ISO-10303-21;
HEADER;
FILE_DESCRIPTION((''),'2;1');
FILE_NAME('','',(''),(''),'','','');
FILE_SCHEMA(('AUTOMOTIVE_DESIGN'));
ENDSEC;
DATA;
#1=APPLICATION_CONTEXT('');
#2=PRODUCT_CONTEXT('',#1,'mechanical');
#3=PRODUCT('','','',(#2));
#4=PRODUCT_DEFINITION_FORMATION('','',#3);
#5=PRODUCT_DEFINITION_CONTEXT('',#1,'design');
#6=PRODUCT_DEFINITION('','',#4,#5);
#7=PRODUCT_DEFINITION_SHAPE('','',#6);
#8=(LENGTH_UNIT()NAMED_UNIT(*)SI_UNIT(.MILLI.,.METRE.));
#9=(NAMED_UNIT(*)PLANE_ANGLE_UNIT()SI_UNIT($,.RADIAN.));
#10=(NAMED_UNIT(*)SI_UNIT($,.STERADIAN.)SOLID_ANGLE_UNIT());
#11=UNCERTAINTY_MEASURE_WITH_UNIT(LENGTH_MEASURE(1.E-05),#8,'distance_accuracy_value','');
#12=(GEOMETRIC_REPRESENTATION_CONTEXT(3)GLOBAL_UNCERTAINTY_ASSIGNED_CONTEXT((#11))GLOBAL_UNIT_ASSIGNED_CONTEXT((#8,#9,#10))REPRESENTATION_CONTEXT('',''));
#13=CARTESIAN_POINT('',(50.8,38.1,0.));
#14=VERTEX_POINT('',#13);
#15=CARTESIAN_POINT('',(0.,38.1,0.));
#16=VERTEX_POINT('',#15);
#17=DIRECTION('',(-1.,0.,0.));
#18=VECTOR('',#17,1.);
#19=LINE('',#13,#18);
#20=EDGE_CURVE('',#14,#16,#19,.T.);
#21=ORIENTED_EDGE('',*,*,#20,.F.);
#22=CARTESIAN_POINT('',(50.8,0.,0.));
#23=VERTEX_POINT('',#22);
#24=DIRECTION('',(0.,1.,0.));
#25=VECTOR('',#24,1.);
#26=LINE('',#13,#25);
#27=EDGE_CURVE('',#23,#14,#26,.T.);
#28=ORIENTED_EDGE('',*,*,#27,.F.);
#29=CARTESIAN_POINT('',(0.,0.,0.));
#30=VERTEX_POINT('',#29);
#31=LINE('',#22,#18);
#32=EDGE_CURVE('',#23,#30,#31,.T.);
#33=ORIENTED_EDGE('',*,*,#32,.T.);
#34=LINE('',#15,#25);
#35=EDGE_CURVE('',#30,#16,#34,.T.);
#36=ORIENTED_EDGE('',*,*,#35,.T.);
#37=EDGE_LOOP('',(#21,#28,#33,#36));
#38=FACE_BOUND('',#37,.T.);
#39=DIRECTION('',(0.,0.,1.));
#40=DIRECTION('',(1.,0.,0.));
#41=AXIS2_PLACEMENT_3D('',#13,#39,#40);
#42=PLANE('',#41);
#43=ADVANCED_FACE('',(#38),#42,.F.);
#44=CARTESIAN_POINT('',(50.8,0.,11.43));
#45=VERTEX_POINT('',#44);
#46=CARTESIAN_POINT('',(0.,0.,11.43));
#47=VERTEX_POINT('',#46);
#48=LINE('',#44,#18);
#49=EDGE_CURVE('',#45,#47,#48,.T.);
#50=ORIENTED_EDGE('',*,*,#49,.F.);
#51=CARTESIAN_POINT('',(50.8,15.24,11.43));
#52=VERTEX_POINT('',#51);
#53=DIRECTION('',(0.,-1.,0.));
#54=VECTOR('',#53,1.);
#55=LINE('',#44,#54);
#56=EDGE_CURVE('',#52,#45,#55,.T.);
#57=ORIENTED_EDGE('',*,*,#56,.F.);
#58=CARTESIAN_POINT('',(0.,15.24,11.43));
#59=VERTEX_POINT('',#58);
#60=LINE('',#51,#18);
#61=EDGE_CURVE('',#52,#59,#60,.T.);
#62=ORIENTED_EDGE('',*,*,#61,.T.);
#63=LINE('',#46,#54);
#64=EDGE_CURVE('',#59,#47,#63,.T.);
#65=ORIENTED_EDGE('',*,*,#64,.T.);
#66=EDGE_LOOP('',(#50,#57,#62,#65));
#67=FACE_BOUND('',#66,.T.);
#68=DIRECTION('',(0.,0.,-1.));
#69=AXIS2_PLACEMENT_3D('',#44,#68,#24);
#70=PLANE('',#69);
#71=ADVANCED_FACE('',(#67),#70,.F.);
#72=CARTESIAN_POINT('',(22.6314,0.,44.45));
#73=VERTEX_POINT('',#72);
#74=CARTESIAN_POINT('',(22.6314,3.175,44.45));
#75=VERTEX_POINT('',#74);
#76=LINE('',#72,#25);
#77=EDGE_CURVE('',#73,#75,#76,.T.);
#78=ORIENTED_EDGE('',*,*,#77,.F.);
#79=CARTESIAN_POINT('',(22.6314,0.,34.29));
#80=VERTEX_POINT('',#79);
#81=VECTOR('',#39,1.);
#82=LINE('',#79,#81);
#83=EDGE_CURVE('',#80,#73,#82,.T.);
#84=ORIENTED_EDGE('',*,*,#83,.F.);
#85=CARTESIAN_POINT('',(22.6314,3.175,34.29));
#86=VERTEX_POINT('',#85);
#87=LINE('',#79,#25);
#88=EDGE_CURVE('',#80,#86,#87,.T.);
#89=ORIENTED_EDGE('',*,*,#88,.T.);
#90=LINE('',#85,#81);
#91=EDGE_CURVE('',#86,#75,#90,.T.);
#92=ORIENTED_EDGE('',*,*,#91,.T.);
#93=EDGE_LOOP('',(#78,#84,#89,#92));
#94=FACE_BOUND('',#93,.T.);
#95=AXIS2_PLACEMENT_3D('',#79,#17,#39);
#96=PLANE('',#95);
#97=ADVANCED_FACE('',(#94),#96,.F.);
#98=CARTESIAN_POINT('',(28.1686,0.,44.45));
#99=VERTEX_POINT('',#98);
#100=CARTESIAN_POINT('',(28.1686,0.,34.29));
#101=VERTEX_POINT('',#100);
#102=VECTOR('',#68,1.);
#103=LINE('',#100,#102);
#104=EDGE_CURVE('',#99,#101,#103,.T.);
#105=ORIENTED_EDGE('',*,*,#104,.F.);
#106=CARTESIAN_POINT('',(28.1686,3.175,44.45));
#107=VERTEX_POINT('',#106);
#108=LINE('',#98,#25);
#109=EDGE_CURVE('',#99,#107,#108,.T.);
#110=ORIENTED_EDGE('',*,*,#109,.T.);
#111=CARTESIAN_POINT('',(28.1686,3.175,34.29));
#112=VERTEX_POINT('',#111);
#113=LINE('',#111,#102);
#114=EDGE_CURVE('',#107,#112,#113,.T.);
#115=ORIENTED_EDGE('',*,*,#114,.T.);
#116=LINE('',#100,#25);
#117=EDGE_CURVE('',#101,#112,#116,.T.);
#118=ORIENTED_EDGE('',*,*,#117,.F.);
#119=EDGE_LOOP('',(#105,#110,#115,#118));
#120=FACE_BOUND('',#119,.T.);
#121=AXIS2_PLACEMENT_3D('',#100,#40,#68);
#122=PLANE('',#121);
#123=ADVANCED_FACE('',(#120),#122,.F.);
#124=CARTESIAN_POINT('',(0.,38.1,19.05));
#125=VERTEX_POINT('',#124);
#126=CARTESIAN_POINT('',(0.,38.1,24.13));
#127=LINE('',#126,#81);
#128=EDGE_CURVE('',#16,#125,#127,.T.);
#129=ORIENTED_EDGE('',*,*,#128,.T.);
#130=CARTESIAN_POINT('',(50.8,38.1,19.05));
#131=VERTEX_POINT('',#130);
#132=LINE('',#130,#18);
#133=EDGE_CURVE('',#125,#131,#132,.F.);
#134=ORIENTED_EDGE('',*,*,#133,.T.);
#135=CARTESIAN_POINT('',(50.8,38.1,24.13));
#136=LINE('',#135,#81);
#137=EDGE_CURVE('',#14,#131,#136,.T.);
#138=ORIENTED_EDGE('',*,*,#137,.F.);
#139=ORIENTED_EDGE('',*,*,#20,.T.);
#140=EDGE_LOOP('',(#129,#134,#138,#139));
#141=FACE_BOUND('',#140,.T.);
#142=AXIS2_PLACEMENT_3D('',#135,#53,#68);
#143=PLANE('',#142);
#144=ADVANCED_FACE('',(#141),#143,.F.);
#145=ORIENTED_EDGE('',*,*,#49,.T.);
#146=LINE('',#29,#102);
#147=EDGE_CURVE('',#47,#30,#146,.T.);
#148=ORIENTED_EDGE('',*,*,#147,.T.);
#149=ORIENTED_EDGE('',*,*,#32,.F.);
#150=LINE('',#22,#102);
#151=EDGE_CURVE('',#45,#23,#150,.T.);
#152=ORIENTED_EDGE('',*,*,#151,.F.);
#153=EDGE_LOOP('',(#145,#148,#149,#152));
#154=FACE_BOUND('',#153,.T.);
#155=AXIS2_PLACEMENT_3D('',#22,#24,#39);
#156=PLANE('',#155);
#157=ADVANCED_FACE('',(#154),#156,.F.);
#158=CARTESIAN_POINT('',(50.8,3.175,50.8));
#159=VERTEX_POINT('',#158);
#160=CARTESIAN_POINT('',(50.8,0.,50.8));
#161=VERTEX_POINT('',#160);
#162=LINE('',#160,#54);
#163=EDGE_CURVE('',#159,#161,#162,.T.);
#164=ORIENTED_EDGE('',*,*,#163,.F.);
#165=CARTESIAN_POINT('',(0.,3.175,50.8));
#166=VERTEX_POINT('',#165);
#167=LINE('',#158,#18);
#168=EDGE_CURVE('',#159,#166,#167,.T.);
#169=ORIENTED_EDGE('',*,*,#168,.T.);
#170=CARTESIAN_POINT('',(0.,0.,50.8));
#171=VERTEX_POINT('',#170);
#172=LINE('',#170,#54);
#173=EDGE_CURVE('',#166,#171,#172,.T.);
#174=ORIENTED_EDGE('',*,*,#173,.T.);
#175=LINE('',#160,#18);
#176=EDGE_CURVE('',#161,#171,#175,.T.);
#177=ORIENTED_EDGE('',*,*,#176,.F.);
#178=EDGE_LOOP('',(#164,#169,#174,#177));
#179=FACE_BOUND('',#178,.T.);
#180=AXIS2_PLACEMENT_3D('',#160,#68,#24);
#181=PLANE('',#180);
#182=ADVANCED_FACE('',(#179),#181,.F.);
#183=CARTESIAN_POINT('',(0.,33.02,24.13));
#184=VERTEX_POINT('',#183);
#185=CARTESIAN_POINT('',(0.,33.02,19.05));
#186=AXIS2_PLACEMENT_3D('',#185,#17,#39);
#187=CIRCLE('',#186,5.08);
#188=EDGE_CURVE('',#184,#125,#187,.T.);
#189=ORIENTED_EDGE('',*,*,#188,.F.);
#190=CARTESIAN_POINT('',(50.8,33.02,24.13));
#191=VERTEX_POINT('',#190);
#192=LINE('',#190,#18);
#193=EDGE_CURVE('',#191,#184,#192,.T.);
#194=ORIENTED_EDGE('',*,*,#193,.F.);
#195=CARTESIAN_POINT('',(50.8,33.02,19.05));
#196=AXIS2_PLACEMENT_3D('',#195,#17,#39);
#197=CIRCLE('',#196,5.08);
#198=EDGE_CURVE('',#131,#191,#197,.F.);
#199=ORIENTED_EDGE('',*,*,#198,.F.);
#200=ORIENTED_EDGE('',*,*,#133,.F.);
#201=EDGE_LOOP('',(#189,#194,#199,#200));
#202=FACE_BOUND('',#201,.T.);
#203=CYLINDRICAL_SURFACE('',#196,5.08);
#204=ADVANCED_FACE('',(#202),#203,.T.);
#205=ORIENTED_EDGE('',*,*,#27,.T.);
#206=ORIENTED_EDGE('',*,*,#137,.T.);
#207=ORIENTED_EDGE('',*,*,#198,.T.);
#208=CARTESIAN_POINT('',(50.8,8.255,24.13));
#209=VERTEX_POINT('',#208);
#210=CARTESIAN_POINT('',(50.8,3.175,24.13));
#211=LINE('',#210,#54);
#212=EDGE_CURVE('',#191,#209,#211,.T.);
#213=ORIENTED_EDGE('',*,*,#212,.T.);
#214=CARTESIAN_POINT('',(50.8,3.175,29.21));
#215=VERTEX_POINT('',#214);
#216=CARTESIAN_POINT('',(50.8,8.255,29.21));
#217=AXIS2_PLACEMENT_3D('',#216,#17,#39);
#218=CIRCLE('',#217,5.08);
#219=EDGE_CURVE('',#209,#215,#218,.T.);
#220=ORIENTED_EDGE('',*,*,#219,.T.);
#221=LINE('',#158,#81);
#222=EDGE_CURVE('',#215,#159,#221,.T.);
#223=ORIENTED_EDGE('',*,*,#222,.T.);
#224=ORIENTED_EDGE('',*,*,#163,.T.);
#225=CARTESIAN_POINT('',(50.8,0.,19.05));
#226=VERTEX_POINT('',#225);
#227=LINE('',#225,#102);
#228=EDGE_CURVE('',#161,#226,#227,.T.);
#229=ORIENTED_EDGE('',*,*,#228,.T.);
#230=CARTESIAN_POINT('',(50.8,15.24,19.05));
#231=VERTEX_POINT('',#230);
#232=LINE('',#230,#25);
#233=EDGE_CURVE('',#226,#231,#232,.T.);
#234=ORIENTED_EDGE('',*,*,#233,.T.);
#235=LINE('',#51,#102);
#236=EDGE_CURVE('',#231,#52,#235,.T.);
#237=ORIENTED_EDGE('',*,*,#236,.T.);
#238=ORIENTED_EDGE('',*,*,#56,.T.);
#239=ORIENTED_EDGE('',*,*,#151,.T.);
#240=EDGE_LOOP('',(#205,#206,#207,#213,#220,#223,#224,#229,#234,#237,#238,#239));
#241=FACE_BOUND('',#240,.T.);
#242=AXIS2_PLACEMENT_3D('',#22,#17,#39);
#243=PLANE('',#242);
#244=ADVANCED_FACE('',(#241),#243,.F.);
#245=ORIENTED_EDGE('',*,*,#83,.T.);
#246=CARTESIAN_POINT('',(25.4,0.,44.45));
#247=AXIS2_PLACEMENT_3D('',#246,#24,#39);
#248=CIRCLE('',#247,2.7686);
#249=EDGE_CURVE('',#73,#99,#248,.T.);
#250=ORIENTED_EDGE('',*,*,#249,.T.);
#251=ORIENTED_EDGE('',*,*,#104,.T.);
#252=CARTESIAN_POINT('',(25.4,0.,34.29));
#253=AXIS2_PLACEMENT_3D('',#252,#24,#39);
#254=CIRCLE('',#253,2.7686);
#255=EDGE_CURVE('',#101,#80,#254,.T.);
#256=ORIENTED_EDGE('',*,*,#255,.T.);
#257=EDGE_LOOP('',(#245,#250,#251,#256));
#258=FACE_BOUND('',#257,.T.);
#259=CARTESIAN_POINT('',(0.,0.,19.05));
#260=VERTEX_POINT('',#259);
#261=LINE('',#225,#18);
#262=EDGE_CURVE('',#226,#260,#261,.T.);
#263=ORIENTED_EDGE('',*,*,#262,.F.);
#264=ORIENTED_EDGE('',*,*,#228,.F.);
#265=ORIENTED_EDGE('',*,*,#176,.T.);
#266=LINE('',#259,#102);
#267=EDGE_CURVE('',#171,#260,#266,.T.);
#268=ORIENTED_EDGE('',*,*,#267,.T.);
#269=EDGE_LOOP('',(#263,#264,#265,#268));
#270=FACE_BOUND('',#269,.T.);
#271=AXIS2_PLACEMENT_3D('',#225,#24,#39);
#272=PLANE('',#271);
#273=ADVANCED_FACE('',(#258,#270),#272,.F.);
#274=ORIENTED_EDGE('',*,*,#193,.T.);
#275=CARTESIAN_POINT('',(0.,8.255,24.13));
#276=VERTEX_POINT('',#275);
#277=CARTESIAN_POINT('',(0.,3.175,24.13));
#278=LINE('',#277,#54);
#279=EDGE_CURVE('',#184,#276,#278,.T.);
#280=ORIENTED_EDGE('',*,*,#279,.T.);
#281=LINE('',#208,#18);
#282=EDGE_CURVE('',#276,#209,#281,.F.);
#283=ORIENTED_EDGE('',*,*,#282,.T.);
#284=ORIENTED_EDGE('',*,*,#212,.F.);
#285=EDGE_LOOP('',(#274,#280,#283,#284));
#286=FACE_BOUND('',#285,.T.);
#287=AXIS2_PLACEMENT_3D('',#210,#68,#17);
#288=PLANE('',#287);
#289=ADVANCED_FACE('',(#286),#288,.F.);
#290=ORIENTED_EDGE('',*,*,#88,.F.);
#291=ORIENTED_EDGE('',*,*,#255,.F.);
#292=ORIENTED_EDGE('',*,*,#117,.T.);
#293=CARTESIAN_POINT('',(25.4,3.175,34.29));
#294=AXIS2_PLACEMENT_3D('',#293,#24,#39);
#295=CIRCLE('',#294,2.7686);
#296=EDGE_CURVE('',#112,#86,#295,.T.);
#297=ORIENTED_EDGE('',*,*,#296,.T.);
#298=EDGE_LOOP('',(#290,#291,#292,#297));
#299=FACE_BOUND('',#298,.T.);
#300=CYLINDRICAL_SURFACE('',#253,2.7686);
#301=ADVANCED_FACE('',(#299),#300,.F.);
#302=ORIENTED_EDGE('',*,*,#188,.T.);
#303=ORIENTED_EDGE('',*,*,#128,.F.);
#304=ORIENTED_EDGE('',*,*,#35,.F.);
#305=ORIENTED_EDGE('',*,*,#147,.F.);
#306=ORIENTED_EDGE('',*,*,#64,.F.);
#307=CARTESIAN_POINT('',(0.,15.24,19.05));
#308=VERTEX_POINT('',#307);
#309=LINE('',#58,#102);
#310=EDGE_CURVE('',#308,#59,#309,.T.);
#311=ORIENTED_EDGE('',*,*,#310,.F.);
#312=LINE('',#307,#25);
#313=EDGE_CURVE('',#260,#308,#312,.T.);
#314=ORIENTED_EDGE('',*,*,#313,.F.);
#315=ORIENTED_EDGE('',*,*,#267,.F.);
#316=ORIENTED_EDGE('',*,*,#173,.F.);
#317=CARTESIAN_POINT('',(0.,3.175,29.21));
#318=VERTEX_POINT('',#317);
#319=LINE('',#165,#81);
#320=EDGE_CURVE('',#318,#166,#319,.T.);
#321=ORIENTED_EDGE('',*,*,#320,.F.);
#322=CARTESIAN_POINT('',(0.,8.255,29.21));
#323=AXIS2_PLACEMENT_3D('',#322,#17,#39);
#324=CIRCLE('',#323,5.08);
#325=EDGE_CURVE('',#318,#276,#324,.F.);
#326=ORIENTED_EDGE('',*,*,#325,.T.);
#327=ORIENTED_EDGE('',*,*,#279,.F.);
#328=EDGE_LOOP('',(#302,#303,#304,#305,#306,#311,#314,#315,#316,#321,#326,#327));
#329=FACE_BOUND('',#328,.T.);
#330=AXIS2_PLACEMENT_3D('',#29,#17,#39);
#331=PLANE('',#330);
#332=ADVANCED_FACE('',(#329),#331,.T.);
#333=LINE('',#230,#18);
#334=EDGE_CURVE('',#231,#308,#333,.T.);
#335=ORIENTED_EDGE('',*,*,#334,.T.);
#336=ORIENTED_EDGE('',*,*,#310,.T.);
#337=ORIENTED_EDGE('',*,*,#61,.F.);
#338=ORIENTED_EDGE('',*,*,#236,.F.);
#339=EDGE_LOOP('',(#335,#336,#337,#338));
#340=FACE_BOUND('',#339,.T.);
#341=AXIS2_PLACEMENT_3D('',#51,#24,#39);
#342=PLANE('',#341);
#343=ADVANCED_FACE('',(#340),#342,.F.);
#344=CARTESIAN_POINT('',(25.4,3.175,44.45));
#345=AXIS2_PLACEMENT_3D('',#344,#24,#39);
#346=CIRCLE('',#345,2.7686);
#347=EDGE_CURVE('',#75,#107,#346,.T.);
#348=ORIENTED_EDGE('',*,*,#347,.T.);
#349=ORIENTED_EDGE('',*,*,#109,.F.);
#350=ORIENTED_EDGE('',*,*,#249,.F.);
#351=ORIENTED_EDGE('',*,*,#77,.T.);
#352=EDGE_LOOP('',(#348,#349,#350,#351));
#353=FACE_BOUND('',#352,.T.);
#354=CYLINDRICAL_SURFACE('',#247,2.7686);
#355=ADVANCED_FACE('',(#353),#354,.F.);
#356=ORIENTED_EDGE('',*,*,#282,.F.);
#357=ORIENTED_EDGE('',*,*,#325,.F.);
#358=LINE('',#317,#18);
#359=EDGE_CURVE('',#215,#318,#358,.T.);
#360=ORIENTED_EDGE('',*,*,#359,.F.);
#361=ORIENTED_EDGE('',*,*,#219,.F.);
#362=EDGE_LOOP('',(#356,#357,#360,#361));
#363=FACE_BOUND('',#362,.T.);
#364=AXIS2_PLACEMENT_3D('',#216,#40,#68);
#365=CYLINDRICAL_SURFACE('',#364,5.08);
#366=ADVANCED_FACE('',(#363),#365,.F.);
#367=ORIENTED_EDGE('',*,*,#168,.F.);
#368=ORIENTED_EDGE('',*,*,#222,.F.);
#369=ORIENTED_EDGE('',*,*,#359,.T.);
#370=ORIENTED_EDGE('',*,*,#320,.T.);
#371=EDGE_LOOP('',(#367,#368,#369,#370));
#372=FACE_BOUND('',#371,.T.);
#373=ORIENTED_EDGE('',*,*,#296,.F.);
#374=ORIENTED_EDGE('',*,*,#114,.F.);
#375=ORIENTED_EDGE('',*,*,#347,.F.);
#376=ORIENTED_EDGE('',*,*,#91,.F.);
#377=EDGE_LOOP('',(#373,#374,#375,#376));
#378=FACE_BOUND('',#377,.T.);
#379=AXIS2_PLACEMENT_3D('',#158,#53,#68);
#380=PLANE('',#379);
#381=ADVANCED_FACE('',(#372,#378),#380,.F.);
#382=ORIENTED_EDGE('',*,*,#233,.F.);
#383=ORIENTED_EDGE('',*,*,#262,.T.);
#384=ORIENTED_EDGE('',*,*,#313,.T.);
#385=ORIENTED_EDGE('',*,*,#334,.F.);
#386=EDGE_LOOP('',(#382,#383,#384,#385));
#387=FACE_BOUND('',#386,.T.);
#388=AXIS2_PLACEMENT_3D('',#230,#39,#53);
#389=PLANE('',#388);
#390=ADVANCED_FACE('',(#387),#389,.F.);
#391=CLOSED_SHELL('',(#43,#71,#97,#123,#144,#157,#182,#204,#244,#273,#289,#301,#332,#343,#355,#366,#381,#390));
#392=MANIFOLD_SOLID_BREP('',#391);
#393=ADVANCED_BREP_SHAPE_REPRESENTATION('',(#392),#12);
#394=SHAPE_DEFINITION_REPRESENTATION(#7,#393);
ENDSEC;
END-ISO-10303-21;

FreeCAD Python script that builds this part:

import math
import FreeCAD as App
import Part
import Sketcher
Q = App.Units.Quantity


def edges_at(feature, points):
    """Names of the edges that pass closest to the given points."""
    edges = feature.Shape.Edges
    near = lambda p: min(range(len(edges)), key=lambda i: edges[i].distToShape(Part.Vertex(*p))[0])
    return sorted({f"Edge{near(p) + 1}" for p in points})


def add_polygon(sketch, points):
    """Adds a closed chain of lines whose ends are joined by coincident constraints."""
    first, n = sketch.GeometryCount, len(points)
    for a, b in zip(points, points[1:] + points[:1]):
        sketch.addGeometry(Part.LineSegment(App.Vector(*a, 0), App.Vector(*b, 0)), False)
    for i in range(n):
        sketch.addConstraint(Sketcher.Constraint("Coincident", first + i, 2, first + (i + 1) % n, 1))

doc = App.newDocument("Part")
body = doc.addObject("PartDesign::Body", "Body")

sketch1 = body.newObject("Sketcher::SketchObject", "Sketch")
sketch1.AttachmentSupport = (doc.getObject("YZ_Plane"), [""])
sketch1.MapMode = "FlatFace"
add_polygon(sketch1, [(0, 11.4), (0, 0), (38.1, 0), (38.1, 24.1), (3.2, 24.1), (3.2, 50.8), (0, 50.8), (0, 19.1), (15.2, 19.1), (15.2, 11.4)])
sketch1.addConstraint([
    Sketcher.Constraint("Vertical", 0),
    Sketcher.Constraint("Horizontal", 1),
    Sketcher.Constraint("Vertical", 2),
    Sketcher.Constraint("Horizontal", 3),
    Sketcher.Constraint("Vertical", 4),
    Sketcher.Constraint("Horizontal", 5),
    Sketcher.Constraint("Vertical", 6),
    Sketcher.Constraint("Horizontal", 7),
    Sketcher.Constraint("Vertical", 8),
    Sketcher.Constraint("Horizontal", 9),
    Sketcher.Constraint("Coincident", 0, 2, -1, 1),
    Sketcher.Constraint("PointOnObject", 5, 2, -2),
    Sketcher.Constraint("DistanceX", 1, 1, 1, 2, Q("1.5 in")),
    Sketcher.Constraint("DistanceX", 7, 1, 7, 2, Q("0.6 in")),
    Sketcher.Constraint("DistanceY", 8, 2, 8, 1, Q("0.3 in")),
    Sketcher.Constraint("DistanceY", -1, 1, 4, 2, Q("2 in")),
    Sketcher.Constraint("DistanceY", 0, 2, 0, 1, Q("0.45 in")),
    Sketcher.Constraint("DistanceY", 2, 1, 2, 2, Q("0.95 in")),
    Sketcher.Constraint("DistanceX", 3, 2, 3, 1, Q("1.375 in")),
])
pad1 = body.newObject("PartDesign::Pad", "Pad")
pad1.Profile = sketch1
pad1.Length = Q("2 in")

sketch2 = body.newObject("Sketcher::SketchObject", "Sketch001")
sketch2.AttachmentSupport = (doc.getObject("XZ_Plane"), [""])
sketch2.MapMode = "FlatFace"
sketch2.AttachmentOffset = App.Placement(App.Vector(0, 0, -0.125 * 25.4), App.Rotation())
sketch2.addGeometry([
    Part.LineSegment(App.Vector(28.2, 44.5, 0), App.Vector(28.2, 34.3, 0)),
    Part.ArcOfCircle(Part.Circle(App.Vector(25.4, 34.3, 0), App.Vector(0, 0, 1), 2.8), math.radians(180), math.radians(360)),
    Part.LineSegment(App.Vector(22.6, 34.3, 0), App.Vector(22.6, 44.5, 0)),
    Part.ArcOfCircle(Part.Circle(App.Vector(25.4, 44.5, 0), App.Vector(0, 0, 1), 2.8), math.radians(0), math.radians(180)),
], False)
sketch2.addConstraint([
    Sketcher.Constraint("Tangent", 0, 2, 1, 2),
    Sketcher.Constraint("Tangent", 1, 1, 2, 1),
    Sketcher.Constraint("Tangent", 2, 2, 3, 2),
    Sketcher.Constraint("Tangent", 3, 1, 0, 1),
    Sketcher.Constraint("Vertical", 0),
    Sketcher.Constraint("Vertical", 2),
    Sketcher.Constraint("DistanceY", 0, 2, 0, 1, Q("0.4 in")),
    Sketcher.Constraint("DistanceX", -1, 1, 1, 3, Q("1 in")),
    Sketcher.Constraint("Radius", 1, Q("0.109 in")),
    Sketcher.Constraint("DistanceY", -1, 1, 1, 3, Q("1.35 in")),
])
pocket1 = body.newObject("PartDesign::Pocket", "Pocket")
pocket1.Profile = sketch2
pocket1.Type = "ThroughAll"
pocket1.Reversed = True
doc.recompute()

fillet = body.newObject("PartDesign::Fillet", "Fillet")
fillet.Base = (pocket1, edges_at(pocket1, [(25.4, 3.175, 24.13), (25.4, 38.1, 24.13)]))
fillet.Radius = Q("0.2 in")

doc.recompute()
